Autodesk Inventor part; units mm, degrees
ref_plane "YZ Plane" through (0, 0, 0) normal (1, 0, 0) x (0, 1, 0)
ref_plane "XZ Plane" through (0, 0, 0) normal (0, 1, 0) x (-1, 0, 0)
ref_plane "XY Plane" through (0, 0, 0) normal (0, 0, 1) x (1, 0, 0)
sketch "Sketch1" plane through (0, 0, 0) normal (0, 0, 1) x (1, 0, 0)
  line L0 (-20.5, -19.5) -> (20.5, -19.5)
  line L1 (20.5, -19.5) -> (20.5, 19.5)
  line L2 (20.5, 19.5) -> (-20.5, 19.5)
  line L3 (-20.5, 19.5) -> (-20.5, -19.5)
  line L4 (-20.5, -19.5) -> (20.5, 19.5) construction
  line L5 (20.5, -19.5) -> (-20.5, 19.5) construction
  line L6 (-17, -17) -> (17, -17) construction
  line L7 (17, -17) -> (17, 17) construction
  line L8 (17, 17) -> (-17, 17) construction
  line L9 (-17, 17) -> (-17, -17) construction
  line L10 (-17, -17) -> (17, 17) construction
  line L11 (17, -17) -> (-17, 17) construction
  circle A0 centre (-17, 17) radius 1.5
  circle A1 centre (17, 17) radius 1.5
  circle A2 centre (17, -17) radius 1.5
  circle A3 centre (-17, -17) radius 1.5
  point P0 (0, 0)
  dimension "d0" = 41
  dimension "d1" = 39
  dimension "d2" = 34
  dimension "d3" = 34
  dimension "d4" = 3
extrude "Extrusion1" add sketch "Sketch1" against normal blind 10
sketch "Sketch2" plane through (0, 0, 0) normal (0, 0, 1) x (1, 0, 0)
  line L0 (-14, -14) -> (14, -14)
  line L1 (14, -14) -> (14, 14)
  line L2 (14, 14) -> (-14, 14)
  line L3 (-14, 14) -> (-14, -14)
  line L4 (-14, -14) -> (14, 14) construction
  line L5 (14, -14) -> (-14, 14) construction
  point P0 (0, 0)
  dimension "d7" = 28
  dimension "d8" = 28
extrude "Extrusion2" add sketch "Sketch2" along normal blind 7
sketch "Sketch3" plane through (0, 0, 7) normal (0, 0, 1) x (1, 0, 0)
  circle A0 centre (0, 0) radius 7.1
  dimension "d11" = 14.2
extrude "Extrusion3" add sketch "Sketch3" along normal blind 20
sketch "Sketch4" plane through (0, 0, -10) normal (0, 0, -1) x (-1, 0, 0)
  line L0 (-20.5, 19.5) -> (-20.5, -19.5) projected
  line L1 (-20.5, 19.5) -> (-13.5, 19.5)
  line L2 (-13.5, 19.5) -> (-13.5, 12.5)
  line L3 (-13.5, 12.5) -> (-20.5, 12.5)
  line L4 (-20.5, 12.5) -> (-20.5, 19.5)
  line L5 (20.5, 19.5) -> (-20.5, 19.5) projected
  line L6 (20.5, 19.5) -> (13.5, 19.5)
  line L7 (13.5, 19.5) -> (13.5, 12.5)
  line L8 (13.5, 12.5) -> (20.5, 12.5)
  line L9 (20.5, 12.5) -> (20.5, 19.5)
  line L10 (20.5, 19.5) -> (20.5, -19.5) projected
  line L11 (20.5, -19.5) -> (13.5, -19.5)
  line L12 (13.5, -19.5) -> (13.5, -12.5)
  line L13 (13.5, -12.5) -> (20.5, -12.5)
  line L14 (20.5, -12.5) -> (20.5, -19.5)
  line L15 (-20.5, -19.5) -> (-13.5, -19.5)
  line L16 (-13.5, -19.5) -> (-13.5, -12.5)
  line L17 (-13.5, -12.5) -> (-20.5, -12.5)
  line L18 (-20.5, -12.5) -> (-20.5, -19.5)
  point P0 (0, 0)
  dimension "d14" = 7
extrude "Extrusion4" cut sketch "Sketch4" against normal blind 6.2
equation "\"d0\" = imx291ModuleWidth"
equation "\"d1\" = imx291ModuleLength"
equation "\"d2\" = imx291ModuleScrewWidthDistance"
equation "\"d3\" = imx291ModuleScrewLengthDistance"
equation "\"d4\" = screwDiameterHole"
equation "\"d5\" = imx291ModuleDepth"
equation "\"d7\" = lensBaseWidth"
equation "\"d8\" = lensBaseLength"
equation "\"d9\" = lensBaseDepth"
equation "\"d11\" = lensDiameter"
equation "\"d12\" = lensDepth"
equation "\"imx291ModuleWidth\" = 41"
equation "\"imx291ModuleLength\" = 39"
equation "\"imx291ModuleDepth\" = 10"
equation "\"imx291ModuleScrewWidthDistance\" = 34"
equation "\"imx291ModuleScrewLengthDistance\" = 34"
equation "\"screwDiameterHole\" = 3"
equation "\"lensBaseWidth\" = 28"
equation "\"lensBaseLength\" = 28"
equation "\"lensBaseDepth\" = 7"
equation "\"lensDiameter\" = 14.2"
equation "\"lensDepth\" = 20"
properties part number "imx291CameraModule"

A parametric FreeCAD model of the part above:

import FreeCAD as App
import Part
import Sketcher

V = App.Vector

doc = App.newDocument("Part")
body = doc.addObject("PartDesign::Body", "Body")

# Sketch on XY plane
sketch1 = doc.addObject("Sketcher::SketchObject", "Sketch")
body.addObject(sketch1)
sketch1.AttachmentSupport = (doc.XY_Plane, [""])
sketch1.MapMode = "FlatFace"
sketch1.addGeometry([
    Part.LineSegment(V(-20.5, 19.5, 0), V(-20.5, -19.5, 0)),  # 0
    Part.LineSegment(V(-20.5, -19.5, 0), V(20.5, -19.5, 0)),  # 1
    Part.LineSegment(V(20.5, -19.5, 0), V(20.5, 19.5, 0)),  # 2
    Part.LineSegment(V(20.5, 19.5, 0), V(-20.5, 19.5, 0)),  # 3
    Part.Circle(V(-17, -17, 0), V(0, 0, 1), 1.5),  # 4
    Part.Circle(V(17, -17, 0), V(0, 0, 1), 1.5),  # 5
    Part.Circle(V(-17, 17, 0), V(0, 0, 1), 1.5),  # 6
    Part.Circle(V(17, 17, 0), V(0, 0, 1), 1.5),  # 7
], False)
sketch1.addConstraint([
    Sketcher.Constraint("Coincident", 0, 2, 1, 1),
    Sketcher.Constraint("Coincident", 1, 2, 2, 1),
    Sketcher.Constraint("Coincident", 2, 2, 3, 1),
    Sketcher.Constraint("Coincident", 3, 2, 0, 1),
    Sketcher.Constraint("Vertical", 0),
    Sketcher.Constraint("Horizontal", 1),
    Sketcher.Constraint("Vertical", 2),
    Sketcher.Constraint("Horizontal", 3),
    Sketcher.Constraint("Equal", 4, 5),
    Sketcher.Constraint("Equal", 5, 6),
    Sketcher.Constraint("Equal", 6, 7),
    Sketcher.Constraint("Symmetric", 5, 3, 6, 3, -1, 1),
    Sketcher.Constraint("Symmetric", 4, 3, 7, 3, -1, 1),
    Sketcher.Constraint("Symmetric", 0, 2, 2, 2, -1, 1),
    Sketcher.Constraint("Symmetric", 4, 3, 5, 3, -2),
    Sketcher.Constraint("Diameter", 4, 3.0),
    Sketcher.Constraint("DistanceX", 1, 1, 1, 2, 41.0),
    Sketcher.Constraint("DistanceY", 0, 2, 0, 1, 39.0),
    Sketcher.Constraint("DistanceX", 4, 3, 5, 3, 34.0),
    Sketcher.Constraint("DistanceY", 4, 3, 6, 3, 34.0),
])
pad1 = doc.addObject("PartDesign::Pad", "Pad")
body.addObject(pad1)
pad1.Profile = sketch1
pad1.Length = 10
pad1.Reversed = True

# Sketch on XY plane
sketch2 = doc.addObject("Sketcher::SketchObject", "Sketch001")
body.addObject(sketch2)
sketch2.AttachmentSupport = (doc.XY_Plane, [""])
sketch2.MapMode = "FlatFace"
sketch2.addGeometry([
    Part.LineSegment(V(-14, 14, 0), V(-14, -14, 0)),
    Part.LineSegment(V(-14, -14, 0), V(14, -14, 0)),
    Part.LineSegment(V(14, -14, 0), V(14, 14, 0)),
    Part.LineSegment(V(14, 14, 0), V(-14, 14, 0)),
], False)
sketch2.addConstraint([
    Sketcher.Constraint("Coincident", 0, 2, 1, 1),
    Sketcher.Constraint("Coincident", 1, 2, 2, 1),
    Sketcher.Constraint("Coincident", 2, 2, 3, 1),
    Sketcher.Constraint("Coincident", 3, 2, 0, 1),
    Sketcher.Constraint("Vertical", 0),
    Sketcher.Constraint("Horizontal", 1),
    Sketcher.Constraint("Vertical", 2),
    Sketcher.Constraint("Horizontal", 3),
    Sketcher.Constraint("Symmetric", 0, 2, 2, 2, -1, 1),
    Sketcher.Constraint("Equal", 3, 0),
    Sketcher.Constraint("DistanceX", 1, 1, 1, 2, 28.0),
])
pad2 = doc.addObject("PartDesign::Pad", "Pad001")
body.addObject(pad2)
pad2.Profile = sketch2
pad2.Length = 7

# Sketch on XY plane
sketch3 = doc.addObject("Sketcher::SketchObject", "Sketch002")
body.addObject(sketch3)
sketch3.AttachmentSupport = (doc.XY_Plane, [""])
sketch3.MapMode = "FlatFace"
sketch3.AttachmentOffset = App.Placement(V(0, 0, 7), App.Rotation())
sketch3.addGeometry(Part.Circle(V(0, 0, 0), V(0, 0, 1), 7.1), False)
sketch3.addConstraint([
    Sketcher.Constraint("Coincident", 0, 3, -1, 1),
    Sketcher.Constraint("Diameter", 0, 14.2),
])
pad3 = doc.addObject("PartDesign::Pad", "Pad002")
body.addObject(pad3)
pad3.Profile = sketch3
pad3.Length = 20

# Sketch on XY plane
sketch4 = doc.addObject("Sketcher::SketchObject", "Sketch003")
body.addObject(sketch4)
sketch4.AttachmentSupport = (doc.XY_Plane, [""])
sketch4.MapMode = "FlatFace"
sketch4.AttachmentOffset = App.Placement(V(0, 0, -10), App.Rotation())
sketch4.addGeometry([
    Part.LineSegment(V(13.5, 19.5, 0), V(20.5, 19.5, 0)),  # 0
    Part.LineSegment(V(20.5, 19.5, 0), V(20.5, 12.5, 0)),  # 1
    Part.LineSegment(V(20.5, 12.5, 0), V(13.5, 12.5, 0)),  # 2
    Part.LineSegment(V(13.5, 12.5, 0), V(13.5, 19.5, 0)),  # 3
    Part.LineSegment(V(-20.5, -19.5, 0), V(-20.5, -12.5, 0)),  # 4
    Part.LineSegment(V(-20.5, -12.5, 0), V(-13.5, -12.5, 0)),  # 5
    Part.LineSegment(V(-13.5, -12.5, 0), V(-13.5, -19.5, 0)),  # 6
    Part.LineSegment(V(-13.5, -19.5, 0), V(-20.5, -19.5, 0)),  # 7
    Part.LineSegment(V(-20.5, 19.5, 0), V(-13.5, 19.5, 0)),  # 8
    Part.LineSegment(V(-13.5, 19.5, 0), V(-13.5, 12.5, 0)),  # 9
    Part.LineSegment(V(-13.5, 12.5, 0), V(-20.5, 12.5, 0)),  # 10
    Part.LineSegment(V(-20.5, 12.5, 0), V(-20.5, 19.5, 0)),  # 11
    Part.LineSegment(V(13.5, -12.5, 0), V(20.5, -12.5, 0)),  # 12
    Part.LineSegment(V(20.5, -12.5, 0), V(20.5, -19.5, 0)),  # 13
    Part.LineSegment(V(20.5, -19.5, 0), V(13.5, -19.5, 0)),  # 14
    Part.LineSegment(V(13.5, -19.5, 0), V(13.5, -12.5, 0)),  # 15
], False)
sketch4.addConstraint([
    Sketcher.Constraint("Coincident", 0, 2, 1, 1),
    Sketcher.Constraint("Coincident", 1, 2, 2, 1),
    Sketcher.Constraint("Coincident", 2, 2, 3, 1),
    Sketcher.Constraint("Coincident", 3, 2, 0, 1),
    Sketcher.Constraint("Coincident", 4, 2, 5, 1),
    Sketcher.Constraint("Coincident", 5, 2, 6, 1),
    Sketcher.Constraint("Coincident", 6, 2, 7, 1),
    Sketcher.Constraint("Coincident", 7, 2, 4, 1),
    Sketcher.Constraint("Coincident", 8, 2, 9, 1),
    Sketcher.Constraint("Coincident", 9, 2, 10, 1),
    Sketcher.Constraint("Coincident", 10, 2, 11, 1),
    Sketcher.Constraint("Coincident", 11, 2, 8, 1),
    Sketcher.Constraint("Coincident", 12, 2, 13, 1),
    Sketcher.Constraint("Coincident", 13, 2, 14, 1),
    Sketcher.Constraint("Coincident", 14, 2, 15, 1),
    Sketcher.Constraint("Coincident", 15, 2, 12, 1),
    Sketcher.Constraint("Horizontal", 0),
    Sketcher.Constraint("Vertical", 1),
    Sketcher.Constraint("Horizontal", 2),
    Sketcher.Constraint("Vertical", 3),
    Sketcher.Constraint("Vertical", 4),
    Sketcher.Constraint("Horizontal", 5),
    Sketcher.Constraint("Vertical", 6),
    Sketcher.Constraint("Horizontal", 7),
    Sketcher.Constraint("Horizontal", 8),
    Sketcher.Constraint("Vertical", 9),
    Sketcher.Constraint("Horizontal", 10),
    Sketcher.Constraint("Vertical", 11),
    Sketcher.Constraint("Horizontal", 12),
    Sketcher.Constraint("Vertical", 13),
    Sketcher.Constraint("Horizontal", 14),
    Sketcher.Constraint("Vertical", 15),
    Sketcher.Constraint("Symmetric", 1, 2, 4, 2, -1, 1),
    Sketcher.Constraint("Symmetric", 3, 2, 6, 2, -1, 1),
    Sketcher.Constraint("Symmetric", 10, 2, 12, 2, -1, 1),
    Sketcher.Constraint("Symmetric", 8, 2, 14, 2, -1, 1),
    Sketcher.Constraint("Symmetric", 3, 2, 8, 2, -2),
    Sketcher.Constraint("Symmetric", 1, 2, 10, 2, -2),
    Sketcher.Constraint("Equal", 14, 1),
    Sketcher.Constraint("DistanceX", 0, 1, 0, 2, 7.0),
    Sketcher.Constraint("DistanceX", 4, 2, 2, 2, 34.0),
    Sketcher.Constraint("DistanceY", 4, 2, 2, 2, 25.0),
])
pocket1 = doc.addObject("PartDesign::Pocket", "Pocket")
body.addObject(pocket1)
pocket1.Profile = sketch4
pocket1.Length = 6.2
pocket1.Reversed = True

doc.recompute()
